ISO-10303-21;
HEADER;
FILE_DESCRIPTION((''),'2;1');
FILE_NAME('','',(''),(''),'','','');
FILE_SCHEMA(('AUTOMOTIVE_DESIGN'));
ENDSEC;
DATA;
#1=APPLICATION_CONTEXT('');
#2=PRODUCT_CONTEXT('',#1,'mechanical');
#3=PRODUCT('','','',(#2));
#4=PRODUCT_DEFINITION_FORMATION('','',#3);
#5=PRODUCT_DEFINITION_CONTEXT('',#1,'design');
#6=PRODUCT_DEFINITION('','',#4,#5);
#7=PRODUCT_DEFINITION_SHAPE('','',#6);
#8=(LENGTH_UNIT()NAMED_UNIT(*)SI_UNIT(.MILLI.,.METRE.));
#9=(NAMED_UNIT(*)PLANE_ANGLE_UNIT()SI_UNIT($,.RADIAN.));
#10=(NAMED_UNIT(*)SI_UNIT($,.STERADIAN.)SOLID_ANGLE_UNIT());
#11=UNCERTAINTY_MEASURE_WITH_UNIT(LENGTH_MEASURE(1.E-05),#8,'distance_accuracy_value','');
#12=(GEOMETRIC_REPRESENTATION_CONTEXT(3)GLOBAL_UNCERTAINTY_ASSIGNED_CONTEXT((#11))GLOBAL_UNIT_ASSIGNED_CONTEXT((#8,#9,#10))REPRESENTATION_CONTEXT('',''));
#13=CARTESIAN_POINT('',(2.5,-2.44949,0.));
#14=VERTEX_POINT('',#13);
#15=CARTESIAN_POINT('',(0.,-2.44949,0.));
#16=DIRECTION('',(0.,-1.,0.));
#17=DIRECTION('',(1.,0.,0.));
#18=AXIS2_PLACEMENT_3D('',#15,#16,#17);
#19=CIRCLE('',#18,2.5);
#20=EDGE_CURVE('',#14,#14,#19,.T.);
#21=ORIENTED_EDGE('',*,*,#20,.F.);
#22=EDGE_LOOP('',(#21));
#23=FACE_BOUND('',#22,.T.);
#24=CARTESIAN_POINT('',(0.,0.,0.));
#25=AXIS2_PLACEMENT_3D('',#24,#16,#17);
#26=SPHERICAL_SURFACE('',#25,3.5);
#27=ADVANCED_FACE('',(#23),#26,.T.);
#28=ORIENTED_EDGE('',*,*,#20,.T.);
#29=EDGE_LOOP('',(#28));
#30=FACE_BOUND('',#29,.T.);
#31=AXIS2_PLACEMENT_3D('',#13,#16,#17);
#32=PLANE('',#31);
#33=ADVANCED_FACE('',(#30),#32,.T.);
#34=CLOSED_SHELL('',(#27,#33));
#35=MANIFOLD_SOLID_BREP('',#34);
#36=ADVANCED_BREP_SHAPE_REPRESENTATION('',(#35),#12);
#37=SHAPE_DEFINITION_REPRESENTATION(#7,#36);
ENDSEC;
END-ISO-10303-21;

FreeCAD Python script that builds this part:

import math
import FreeCAD as App
import Part
import Sketcher

V = App.Vector
Q = App.Units.Quantity

doc = App.newDocument("Part")
body = doc.addObject("PartDesign::Body", "Body")

sketch1 = doc.addObject("Sketcher::SketchObject", "Sketch")
body.addObject(sketch1)
sketch1.AttachmentSupport = (doc.XY_Plane, [""])
sketch1.MapMode = "FlatFace"
sketch1.addGeometry(Part.LineSegment(V(0, -2.4, 0), V(2.5, -2.4, 0)), False)
sketch1.addGeometry(Part.ArcOfCircle(Part.Circle(V(0, 0, 0), V(0, 0, 1), 3.5), math.radians(-44), math.radians(90)), False)
sketch1.addGeometry(Part.LineSegment(V(0, 3.5, 0), V(0, -2.4, 0)), False)
sketch1.addConstraint(Sketcher.Constraint("Coincident", 0, 2, 1, 1))
sketch1.addConstraint(Sketcher.Constraint("Coincident", 1, 2, 2, 1))
sketch1.addConstraint(Sketcher.Constraint("Coincident", 2, 2, 0, 1))
sketch1.addConstraint(Sketcher.Constraint("Horizontal", 0))
sketch1.addConstraint(Sketcher.Constraint("Vertical", 2))
sketch1.addConstraint(Sketcher.Constraint("Coincident", 1, 3, -1, 1))
sketch1.addConstraint(Sketcher.Constraint("PointOnObject", 1, 2, -2))
sketch1.addConstraint(Sketcher.Constraint("Radius", 1, Q("3.5 mm")))
sketch1.addConstraint(Sketcher.Constraint("DistanceX", 0, 1, 0, 2, Q("2.5 mm")))
revolution = doc.addObject("PartDesign::Revolution", "Revolution")
body.addObject(revolution)
revolution.Profile = sketch1
revolution.ReferenceAxis = (sketch1, ["V_Axis"])
revolution.Angle = 360

doc.recompute()
